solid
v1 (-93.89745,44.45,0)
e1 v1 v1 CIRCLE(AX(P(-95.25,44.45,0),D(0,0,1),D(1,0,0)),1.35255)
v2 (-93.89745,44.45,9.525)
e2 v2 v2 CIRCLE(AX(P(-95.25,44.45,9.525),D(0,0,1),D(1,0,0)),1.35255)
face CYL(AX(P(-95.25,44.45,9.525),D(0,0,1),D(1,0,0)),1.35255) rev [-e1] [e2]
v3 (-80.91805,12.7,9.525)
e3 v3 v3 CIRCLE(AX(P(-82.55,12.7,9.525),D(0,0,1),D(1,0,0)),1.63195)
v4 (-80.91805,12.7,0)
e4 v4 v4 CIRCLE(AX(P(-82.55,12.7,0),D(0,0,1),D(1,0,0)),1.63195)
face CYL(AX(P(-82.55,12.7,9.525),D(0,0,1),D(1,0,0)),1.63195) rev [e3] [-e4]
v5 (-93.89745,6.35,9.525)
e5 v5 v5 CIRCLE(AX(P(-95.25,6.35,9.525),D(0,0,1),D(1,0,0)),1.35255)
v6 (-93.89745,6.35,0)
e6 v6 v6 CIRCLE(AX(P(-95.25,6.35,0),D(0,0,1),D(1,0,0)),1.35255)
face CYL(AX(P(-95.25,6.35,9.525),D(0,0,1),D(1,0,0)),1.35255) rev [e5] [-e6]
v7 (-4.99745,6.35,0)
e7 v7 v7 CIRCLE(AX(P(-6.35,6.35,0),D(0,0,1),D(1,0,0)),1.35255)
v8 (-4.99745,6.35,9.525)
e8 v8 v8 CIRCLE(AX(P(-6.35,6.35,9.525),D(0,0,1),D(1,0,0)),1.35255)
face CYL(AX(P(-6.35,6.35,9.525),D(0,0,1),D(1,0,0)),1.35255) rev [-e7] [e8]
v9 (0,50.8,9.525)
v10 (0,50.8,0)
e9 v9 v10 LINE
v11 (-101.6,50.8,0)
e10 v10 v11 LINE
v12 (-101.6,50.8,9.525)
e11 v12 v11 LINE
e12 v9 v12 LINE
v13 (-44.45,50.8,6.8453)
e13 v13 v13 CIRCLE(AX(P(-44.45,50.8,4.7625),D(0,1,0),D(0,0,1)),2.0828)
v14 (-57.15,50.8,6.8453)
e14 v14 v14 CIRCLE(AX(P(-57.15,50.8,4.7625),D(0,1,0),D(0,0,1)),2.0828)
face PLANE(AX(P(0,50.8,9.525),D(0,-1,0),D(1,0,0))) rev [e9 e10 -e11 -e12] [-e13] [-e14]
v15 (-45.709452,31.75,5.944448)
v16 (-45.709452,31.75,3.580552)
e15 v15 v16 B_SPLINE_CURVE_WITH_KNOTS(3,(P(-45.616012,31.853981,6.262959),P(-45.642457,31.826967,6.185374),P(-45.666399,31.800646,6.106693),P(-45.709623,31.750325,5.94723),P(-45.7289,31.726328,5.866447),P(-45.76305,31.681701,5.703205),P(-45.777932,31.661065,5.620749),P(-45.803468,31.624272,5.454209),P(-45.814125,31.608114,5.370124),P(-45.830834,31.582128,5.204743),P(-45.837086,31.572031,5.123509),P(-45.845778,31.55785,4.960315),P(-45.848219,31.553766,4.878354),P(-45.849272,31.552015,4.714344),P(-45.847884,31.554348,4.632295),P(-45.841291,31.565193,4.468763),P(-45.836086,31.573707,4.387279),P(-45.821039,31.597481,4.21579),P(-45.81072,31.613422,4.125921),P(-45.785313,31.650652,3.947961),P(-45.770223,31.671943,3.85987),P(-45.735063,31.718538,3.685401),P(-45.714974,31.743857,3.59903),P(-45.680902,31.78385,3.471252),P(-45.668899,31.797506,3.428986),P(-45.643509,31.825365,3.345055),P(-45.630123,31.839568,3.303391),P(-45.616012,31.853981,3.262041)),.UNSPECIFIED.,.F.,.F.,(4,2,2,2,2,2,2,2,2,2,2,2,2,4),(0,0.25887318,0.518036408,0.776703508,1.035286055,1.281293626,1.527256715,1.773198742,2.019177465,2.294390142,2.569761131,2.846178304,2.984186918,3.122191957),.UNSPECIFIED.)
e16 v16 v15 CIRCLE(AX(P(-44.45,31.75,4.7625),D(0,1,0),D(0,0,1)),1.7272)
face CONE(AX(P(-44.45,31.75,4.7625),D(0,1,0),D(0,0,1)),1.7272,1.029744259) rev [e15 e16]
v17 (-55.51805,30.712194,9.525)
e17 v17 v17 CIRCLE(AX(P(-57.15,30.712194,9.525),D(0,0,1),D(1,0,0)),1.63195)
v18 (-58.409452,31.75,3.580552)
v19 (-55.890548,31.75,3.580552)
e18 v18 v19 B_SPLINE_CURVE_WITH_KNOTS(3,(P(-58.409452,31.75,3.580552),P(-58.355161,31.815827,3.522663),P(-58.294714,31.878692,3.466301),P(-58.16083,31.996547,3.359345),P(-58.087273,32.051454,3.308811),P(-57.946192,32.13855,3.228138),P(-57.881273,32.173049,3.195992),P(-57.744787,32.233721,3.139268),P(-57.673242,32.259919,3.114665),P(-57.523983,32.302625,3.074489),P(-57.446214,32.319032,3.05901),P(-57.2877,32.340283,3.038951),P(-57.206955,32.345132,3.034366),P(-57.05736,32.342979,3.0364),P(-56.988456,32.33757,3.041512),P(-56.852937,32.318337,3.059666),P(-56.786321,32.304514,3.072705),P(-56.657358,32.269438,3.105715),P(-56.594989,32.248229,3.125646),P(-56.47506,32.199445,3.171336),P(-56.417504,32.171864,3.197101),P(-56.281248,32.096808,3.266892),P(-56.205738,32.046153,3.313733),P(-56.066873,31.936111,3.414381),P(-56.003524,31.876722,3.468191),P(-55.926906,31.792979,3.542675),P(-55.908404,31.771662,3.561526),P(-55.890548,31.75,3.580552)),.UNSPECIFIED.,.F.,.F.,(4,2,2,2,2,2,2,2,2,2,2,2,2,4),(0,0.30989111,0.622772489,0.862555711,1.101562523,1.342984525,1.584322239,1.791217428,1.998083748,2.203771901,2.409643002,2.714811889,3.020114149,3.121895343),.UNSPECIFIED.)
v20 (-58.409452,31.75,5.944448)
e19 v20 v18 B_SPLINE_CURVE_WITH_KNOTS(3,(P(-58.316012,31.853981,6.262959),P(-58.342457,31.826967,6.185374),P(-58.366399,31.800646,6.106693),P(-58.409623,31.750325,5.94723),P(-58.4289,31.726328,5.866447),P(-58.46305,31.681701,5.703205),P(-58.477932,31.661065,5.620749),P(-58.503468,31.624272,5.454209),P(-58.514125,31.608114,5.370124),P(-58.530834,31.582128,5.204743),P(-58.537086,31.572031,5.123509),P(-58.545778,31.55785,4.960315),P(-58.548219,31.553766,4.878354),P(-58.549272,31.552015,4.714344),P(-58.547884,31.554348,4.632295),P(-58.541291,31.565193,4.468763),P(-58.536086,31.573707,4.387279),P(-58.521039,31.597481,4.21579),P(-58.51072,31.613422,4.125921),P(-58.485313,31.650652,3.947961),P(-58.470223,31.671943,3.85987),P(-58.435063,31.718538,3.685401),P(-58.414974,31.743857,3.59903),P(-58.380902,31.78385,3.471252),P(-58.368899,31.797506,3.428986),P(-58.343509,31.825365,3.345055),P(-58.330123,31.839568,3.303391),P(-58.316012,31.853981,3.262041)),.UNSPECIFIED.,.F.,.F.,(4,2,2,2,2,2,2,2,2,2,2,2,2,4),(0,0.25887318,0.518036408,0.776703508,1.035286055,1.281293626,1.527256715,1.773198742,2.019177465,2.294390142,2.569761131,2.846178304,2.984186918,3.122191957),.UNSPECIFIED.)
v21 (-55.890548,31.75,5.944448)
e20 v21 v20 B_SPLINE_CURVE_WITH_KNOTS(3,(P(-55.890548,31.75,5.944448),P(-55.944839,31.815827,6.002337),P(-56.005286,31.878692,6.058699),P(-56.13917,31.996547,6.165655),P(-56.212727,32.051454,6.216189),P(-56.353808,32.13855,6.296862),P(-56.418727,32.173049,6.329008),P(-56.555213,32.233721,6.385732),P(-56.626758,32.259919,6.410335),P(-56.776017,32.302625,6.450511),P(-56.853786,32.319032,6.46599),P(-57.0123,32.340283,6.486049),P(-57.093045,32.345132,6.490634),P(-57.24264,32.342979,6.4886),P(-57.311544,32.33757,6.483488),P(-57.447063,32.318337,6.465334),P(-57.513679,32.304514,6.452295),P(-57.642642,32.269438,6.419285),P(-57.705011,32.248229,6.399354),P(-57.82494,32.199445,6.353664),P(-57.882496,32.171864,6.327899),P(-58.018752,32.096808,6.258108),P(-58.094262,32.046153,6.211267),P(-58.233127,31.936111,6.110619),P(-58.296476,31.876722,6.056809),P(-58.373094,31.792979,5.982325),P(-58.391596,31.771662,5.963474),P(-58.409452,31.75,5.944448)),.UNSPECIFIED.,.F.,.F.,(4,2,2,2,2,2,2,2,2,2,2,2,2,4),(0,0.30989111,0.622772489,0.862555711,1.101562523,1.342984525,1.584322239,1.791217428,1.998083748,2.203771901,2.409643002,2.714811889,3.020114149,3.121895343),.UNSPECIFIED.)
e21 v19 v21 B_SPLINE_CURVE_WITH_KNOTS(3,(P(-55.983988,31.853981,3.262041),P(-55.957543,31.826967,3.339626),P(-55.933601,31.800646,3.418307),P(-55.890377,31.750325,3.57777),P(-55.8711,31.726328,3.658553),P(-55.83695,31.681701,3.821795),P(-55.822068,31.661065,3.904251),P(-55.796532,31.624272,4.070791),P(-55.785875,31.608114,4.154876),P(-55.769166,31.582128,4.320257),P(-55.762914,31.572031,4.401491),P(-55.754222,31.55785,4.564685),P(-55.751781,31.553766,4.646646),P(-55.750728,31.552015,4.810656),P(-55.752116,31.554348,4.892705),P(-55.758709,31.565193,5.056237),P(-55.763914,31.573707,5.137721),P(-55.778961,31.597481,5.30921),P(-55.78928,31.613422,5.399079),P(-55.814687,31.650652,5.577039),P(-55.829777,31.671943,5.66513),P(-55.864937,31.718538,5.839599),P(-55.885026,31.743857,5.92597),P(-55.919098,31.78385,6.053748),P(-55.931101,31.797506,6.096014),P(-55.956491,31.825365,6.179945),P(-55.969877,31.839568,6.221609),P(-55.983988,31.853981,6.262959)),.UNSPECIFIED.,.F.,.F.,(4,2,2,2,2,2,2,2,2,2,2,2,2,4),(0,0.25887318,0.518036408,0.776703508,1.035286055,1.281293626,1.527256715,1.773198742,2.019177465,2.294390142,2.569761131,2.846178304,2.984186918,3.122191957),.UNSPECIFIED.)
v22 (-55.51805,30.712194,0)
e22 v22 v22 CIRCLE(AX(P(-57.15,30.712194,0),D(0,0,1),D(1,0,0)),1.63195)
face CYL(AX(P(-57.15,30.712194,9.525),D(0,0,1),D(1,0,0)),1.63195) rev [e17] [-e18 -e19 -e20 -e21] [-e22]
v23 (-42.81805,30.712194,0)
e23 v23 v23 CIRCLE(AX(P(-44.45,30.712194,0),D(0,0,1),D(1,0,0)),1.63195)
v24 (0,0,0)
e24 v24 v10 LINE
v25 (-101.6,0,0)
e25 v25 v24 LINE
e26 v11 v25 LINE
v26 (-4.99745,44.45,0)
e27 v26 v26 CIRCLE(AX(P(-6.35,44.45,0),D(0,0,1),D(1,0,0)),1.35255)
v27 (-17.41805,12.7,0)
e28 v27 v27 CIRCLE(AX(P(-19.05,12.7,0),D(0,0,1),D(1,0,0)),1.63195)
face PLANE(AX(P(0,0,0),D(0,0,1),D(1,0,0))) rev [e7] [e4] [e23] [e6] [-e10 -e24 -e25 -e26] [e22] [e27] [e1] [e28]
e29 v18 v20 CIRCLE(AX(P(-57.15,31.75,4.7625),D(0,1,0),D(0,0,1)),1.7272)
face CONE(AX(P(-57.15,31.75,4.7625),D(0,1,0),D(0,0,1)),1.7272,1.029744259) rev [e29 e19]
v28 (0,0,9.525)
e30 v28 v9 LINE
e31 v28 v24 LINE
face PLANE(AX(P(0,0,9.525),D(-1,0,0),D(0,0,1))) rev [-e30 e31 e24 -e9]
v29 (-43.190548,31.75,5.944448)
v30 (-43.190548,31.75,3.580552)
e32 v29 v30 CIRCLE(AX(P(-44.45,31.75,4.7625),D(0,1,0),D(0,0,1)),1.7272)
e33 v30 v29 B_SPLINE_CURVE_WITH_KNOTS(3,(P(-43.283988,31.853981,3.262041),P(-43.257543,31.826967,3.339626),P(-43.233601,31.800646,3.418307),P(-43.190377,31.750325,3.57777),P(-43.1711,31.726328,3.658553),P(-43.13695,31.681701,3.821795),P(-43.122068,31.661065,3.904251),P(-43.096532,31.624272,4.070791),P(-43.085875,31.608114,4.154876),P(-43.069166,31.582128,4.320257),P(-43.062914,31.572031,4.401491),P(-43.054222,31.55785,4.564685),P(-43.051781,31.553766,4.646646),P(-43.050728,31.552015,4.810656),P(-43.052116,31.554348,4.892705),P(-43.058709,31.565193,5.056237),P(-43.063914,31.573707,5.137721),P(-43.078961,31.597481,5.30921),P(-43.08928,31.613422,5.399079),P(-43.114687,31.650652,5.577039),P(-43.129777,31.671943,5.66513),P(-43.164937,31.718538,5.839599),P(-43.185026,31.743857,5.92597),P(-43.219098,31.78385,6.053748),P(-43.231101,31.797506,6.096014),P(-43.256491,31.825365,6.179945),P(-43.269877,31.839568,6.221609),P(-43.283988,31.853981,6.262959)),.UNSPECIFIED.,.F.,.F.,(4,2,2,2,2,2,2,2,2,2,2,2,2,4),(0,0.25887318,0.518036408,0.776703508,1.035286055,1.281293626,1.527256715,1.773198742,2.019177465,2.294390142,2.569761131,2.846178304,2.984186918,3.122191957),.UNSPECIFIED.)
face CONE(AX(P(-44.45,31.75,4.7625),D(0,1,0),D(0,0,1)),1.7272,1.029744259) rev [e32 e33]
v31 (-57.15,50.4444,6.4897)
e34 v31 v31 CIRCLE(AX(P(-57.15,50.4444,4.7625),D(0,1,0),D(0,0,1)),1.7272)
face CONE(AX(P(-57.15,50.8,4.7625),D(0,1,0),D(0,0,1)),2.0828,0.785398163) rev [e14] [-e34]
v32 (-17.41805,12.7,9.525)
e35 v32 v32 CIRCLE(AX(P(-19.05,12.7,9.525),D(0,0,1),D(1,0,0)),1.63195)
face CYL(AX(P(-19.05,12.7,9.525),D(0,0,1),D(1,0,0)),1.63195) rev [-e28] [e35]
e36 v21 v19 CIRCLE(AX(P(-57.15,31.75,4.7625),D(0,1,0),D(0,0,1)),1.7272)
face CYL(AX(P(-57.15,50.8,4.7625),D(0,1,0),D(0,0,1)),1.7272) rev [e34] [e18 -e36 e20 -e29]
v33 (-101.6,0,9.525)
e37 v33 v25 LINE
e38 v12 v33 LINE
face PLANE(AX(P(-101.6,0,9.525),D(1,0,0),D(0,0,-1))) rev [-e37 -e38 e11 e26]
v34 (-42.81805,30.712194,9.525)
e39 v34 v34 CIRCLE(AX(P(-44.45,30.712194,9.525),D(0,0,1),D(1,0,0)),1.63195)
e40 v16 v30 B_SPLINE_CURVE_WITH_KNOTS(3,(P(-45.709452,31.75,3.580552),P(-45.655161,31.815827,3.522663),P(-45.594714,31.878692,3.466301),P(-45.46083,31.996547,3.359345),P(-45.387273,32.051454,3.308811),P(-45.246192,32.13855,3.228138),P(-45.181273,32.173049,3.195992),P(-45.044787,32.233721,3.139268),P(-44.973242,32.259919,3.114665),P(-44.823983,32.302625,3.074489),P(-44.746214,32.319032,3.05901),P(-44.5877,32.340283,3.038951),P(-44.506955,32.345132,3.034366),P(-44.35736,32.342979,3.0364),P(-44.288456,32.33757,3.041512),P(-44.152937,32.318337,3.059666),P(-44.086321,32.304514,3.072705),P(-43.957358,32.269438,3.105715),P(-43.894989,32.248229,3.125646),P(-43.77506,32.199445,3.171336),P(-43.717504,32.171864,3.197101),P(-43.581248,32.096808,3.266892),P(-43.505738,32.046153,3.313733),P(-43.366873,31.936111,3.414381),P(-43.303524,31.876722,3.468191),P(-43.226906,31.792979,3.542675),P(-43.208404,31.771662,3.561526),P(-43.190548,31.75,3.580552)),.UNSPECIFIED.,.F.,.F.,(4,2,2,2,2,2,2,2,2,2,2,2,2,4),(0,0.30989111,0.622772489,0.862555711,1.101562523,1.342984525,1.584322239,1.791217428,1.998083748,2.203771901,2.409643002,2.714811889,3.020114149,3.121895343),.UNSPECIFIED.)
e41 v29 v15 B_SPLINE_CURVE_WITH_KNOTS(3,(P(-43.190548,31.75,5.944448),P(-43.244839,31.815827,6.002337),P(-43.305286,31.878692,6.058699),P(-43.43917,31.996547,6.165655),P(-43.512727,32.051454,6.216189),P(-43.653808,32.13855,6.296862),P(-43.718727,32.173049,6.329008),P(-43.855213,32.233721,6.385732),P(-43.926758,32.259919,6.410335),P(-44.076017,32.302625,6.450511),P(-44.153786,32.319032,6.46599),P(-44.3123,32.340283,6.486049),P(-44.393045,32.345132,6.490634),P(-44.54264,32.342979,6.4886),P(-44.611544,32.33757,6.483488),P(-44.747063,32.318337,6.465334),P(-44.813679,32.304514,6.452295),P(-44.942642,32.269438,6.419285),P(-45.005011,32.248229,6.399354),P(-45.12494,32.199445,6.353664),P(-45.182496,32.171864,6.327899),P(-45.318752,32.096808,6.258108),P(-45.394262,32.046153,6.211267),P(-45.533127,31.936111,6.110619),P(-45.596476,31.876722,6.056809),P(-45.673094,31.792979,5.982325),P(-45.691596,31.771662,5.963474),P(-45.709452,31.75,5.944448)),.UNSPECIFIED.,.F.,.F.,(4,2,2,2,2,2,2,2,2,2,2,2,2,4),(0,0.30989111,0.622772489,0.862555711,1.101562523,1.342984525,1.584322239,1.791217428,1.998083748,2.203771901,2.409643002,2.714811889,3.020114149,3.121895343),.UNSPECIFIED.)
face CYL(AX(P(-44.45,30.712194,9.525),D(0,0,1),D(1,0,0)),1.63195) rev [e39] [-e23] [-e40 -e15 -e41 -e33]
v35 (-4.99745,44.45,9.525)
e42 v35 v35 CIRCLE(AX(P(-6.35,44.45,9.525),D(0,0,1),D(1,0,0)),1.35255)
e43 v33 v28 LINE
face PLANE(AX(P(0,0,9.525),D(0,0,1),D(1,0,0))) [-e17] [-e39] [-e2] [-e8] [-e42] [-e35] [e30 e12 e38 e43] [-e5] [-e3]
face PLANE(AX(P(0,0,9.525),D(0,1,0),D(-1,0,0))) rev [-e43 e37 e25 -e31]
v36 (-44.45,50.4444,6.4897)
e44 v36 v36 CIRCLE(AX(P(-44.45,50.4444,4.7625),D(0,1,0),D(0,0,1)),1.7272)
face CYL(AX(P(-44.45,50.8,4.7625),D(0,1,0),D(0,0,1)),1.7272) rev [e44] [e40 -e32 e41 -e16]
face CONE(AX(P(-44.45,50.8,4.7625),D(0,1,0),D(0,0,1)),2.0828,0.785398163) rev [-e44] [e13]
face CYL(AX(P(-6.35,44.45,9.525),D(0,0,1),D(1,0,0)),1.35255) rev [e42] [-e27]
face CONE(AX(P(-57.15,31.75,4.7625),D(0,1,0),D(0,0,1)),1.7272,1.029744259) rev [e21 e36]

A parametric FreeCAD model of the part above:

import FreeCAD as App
import Part
import Sketcher
from FreeCAD import Vector
Q = App.Units.Quantity


def add_polygon(sketch, points):
    """Adds a closed chain of lines whose ends are joined by coincident constraints."""
    first, n = sketch.GeometryCount, len(points)
    for a, b in zip(points, points[1:] + points[:1]):
        sketch.addGeometry(Part.LineSegment(App.Vector(*a, 0), App.Vector(*b, 0)), False)
    for i in range(n):
        sketch.addConstraint(Sketcher.Constraint("Coincident", first + i, 2, first + (i + 1) % n, 1))

doc = App.newDocument("Part")
body = doc.addObject("PartDesign::Body", "Body")

# Sketch on XY plane
sketch1 = body.newObject("Sketcher::SketchObject", "Sketch")
sketch1.AttachmentSupport = (doc.getObject("XY_Plane"), [""])
sketch1.MapMode = "FlatFace"
add_polygon(sketch1, [(-102, 51), (-102, 0), (0, 0), (0, 51)])  # lines 0-3
sketch1.addConstraint(Sketcher.Constraint("Vertical", 0))
sketch1.addConstraint(Sketcher.Constraint("Horizontal", 1))
sketch1.addConstraint(Sketcher.Constraint("Vertical", 2))
sketch1.addConstraint(Sketcher.Constraint("Horizontal", 3))
sketch1.addConstraint(Sketcher.Constraint("Coincident", 1, 2, -1, 1))
sketch1.addConstraint(Sketcher.Constraint("DistanceX", 1, 1, 1, 2, Q("4 in")))
sketch1.addConstraint(Sketcher.Constraint("DistanceY", 0, 2, 0, 1, Q("2 in")))
pad1 = body.newObject("PartDesign::Pad", "Pad")
pad1.Profile = sketch1
pad1.Length = Q("0.375 in")

# Sketch on XZ plane
sketch2 = body.newObject("Sketcher::SketchObject", "Sketch001")
sketch2.AttachmentSupport = (doc.getObject("XZ_Plane"), [""])
sketch2.MapMode = "FlatFace"
sketch2.AttachmentOffset = App.Placement(Vector(0, 0, -2 * 25.4), App.Rotation())
sketch2.addGeometry(Part.Circle(Vector(-44.5, 4.8, 0), Vector(0, 0, 1), 1.7), False)
sketch2.addGeometry(Part.Circle(Vector(-57.1, 4.8, 0), Vector(0, 0, 1), 1.7), False)
sketch2.addConstraint(Sketcher.Constraint("Equal", 0, 1))
sketch2.addConstraint(Sketcher.Constraint("Horizontal", 0, 3, 1, 3))
sketch2.addConstraint(Sketcher.Constraint("Diameter", 0, Q("0.136 in")))
sketch2.addConstraint(Sketcher.Constraint("DistanceX", 1, 3, 0, 3, Q("0.5 in")))
sketch2.addConstraint(Sketcher.Constraint("DistanceX", 0, 3, -1, 1, Q("1.75 in")))
sketch2.addConstraint(Sketcher.Constraint("DistanceY", -1, 1, 0, 3, Q("0.1875 in")))
doc.recompute()
hole = body.newObject("PartDesign::Hole", "Hole")
hole.Profile = sketch2
hole.ThreadType = "None"
hole.Diameter = Q("0.136 in")
hole.DepthType = "Dimension"
hole.Depth = Q("0.75 in")
hole.DrillPoint = "Angled"
hole.DrillPointAngle = 118
hole.HoleCutType = "Countersink"
hole.HoleCutDiameter = Q("0.164 in")
hole.HoleCutCountersinkAngle = 90
hole.Reversed = True

# Sketch on XY plane
sketch3 = body.newObject("Sketcher::SketchObject", "Sketch002")
sketch3.AttachmentSupport = (doc.getObject("XY_Plane"), [""])
sketch3.MapMode = "FlatFace"
sketch3.AttachmentOffset = App.Placement(Vector(0, 0, 0.375 * 25.4), App.Rotation())
sketch3.addGeometry(Part.Circle(Vector(-44.5, 30.7, 0), Vector(0, 0, 1), 1.6), False)
sketch3.addGeometry(Part.Circle(Vector(-57.1, 30.7, 0), Vector(0, 0, 1), 1.6), False)
sketch3.addConstraint(Sketcher.Constraint("Equal", 0, 1))
sketch3.addConstraint(Sketcher.Constraint("Horizontal", 0, 3, 1, 3))
sketch3.addConstraint(Sketcher.Constraint("Diameter", 0, Q("0.1285 in")))
sketch3.addConstraint(Sketcher.Constraint("DistanceX", 1, 3, 0, 3, Q("0.5 in")))
sketch3.addConstraint(Sketcher.Constraint("DistanceX", 0, 3, -1, 1, Q("1.75 in")))
sketch3.addConstraint(Sketcher.Constraint("DistanceY", -1, 1, 0, 3, Q("30.712194 mm")))
doc.recompute()
hole2 = body.newObject("PartDesign::Hole", "Hole001")
hole2.Profile = sketch3
hole2.ThreadType = "None"
hole2.Diameter = Q("0.1285 in")
hole2.DepthType = "Dimension"
hole2.Depth = Q("1 in")
hole2.DrillPoint = "Angled"
hole2.DrillPointAngle = 118

# Sketch on XY plane
sketch4 = body.newObject("Sketcher::SketchObject", "Sketch003")
sketch4.AttachmentSupport = (doc.getObject("XY_Plane"), [""])
sketch4.MapMode = "FlatFace"
sketch4.AttachmentOffset = App.Placement(Vector(0, 0, 0.375 * 25.4), App.Rotation())
sketch4.addGeometry(Part.Circle(Vector(-95.2, 6.3, 0), Vector(0, 0, 1), 1.4), False)
sketch4.addGeometry(Part.Circle(Vector(-95.2, 44.5, 0), Vector(0, 0, 1), 1.4), False)
sketch4.addGeometry(Part.Circle(Vector(-6.3, 6.3, 0), Vector(0, 0, 1), 1.4), False)
sketch4.addGeometry(Part.Circle(Vector(-6.3, 44.5, 0), Vector(0, 0, 1), 1.4), False)
sketch4.addConstraint(Sketcher.Constraint("Equal", 0, 1))
sketch4.addConstraint(Sketcher.Constraint("Equal", 1, 2))
sketch4.addConstraint(Sketcher.Constraint("Equal", 2, 3))
sketch4.addConstraint(Sketcher.Constraint("Horizontal", 0, 3, 2, 3))
sketch4.addConstraint(Sketcher.Constraint("Horizontal", 1, 3, 3, 3))
sketch4.addConstraint(Sketcher.Constraint("Vertical", 0, 3, 1, 3))
sketch4.addConstraint(Sketcher.Constraint("Vertical", 2, 3, 3, 3))
sketch4.addConstraint(Sketcher.Constraint("Diameter", 0, Q("0.1065 in")))
sketch4.addConstraint(Sketcher.Constraint("DistanceY", 0, 3, 1, 3, Q("1.5 in")))
sketch4.addConstraint(Sketcher.Constraint("DistanceX", 0, 3, 2, 3, Q("3.5 in")))
sketch4.addConstraint(Sketcher.Constraint("DistanceX", 0, 3, -1, 1, Q("3.75 in")))
sketch4.addConstraint(Sketcher.Constraint("DistanceY", -1, 1, 0, 3, Q("0.25 in")))
doc.recompute()
hole3 = body.newObject("PartDesign::Hole", "Hole002")
hole3.Profile = sketch4
hole3.ThreadType = "None"
hole3.Diameter = Q("0.1065 in")
hole3.DepthType = "ThroughAll"

# Sketch on XY plane
sketch5 = body.newObject("Sketcher::SketchObject", "Sketch004")
sketch5.AttachmentSupport = (doc.getObject("XY_Plane"), [""])
sketch5.MapMode = "FlatFace"
sketch5.AttachmentOffset = App.Placement(Vector(0, 0, 0.375 * 25.4), App.Rotation())
sketch5.addGeometry(Part.Circle(Vector(-82.5, 12.7, 0), Vector(0, 0, 1), 1.6), False)
sketch5.addGeometry(Part.Circle(Vector(-19.1, 12.7, 0), Vector(0, 0, 1), 1.6), False)
sketch5.addConstraint(Sketcher.Constraint("Equal", 0, 1))
sketch5.addConstraint(Sketcher.Constraint("Horizontal", 0, 3, 1, 3))
sketch5.addConstraint(Sketcher.Constraint("Diameter", 0, Q("0.1285 in")))
sketch5.addConstraint(Sketcher.Constraint("DistanceY", -1, 1, 0, 3, Q("0.5 in")))
sketch5.addConstraint(Sketcher.Constraint("DistanceX", 0, 3, 1, 3, Q("2.5 in")))
sketch5.addConstraint(Sketcher.Constraint("DistanceX", 0, 3, -1, 1, Q("3.25 in")))
doc.recompute()
hole4 = body.newObject("PartDesign::Hole", "Hole003")
hole4.Profile = sketch5
hole4.ThreadType = "None"
hole4.Diameter = Q("0.1285 in")
hole4.DepthType = "Dimension"
hole4.Depth = Q("0.375 in")
hole4.DrillPoint = "Flat"

doc.recompute()
